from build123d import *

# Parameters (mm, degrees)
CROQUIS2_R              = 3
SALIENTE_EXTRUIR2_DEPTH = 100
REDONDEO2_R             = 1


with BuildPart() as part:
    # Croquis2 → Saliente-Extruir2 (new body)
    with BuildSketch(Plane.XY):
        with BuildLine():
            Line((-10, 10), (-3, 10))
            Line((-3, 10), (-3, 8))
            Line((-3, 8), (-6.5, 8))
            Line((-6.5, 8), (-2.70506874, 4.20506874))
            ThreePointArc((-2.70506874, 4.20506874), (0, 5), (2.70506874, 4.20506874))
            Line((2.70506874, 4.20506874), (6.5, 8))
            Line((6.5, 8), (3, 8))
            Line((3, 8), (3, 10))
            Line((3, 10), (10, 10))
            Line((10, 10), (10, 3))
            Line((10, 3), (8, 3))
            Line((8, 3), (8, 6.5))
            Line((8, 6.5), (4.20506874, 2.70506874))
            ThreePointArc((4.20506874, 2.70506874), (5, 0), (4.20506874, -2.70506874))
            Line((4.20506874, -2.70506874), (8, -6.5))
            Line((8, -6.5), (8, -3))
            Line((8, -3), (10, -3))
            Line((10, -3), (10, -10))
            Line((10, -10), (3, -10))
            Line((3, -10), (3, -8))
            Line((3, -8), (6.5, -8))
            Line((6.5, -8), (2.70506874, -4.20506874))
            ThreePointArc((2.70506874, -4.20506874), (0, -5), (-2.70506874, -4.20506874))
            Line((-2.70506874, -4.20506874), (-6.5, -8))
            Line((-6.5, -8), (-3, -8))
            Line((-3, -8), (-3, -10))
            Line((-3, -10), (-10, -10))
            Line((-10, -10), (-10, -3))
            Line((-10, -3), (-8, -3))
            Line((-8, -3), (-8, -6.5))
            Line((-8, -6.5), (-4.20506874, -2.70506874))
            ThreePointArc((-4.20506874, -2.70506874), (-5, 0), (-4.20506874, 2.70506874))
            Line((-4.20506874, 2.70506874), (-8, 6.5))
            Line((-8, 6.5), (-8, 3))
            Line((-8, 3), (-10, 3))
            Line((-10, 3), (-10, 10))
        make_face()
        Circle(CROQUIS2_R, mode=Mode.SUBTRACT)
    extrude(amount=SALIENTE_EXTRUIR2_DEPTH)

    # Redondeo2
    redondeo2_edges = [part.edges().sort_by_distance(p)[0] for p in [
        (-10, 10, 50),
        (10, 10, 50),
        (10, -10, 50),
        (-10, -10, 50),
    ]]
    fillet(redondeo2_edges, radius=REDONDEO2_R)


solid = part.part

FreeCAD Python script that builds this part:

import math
import FreeCAD as App
import Part
import Sketcher

V = App.Vector


def edges_at(feature, points):
    """Names of the edges that pass closest to the given points."""
    edges = feature.Shape.Edges
    near = lambda p: min(range(len(edges)), key=lambda i: edges[i].distToShape(Part.Vertex(*p))[0])
    return sorted({f"Edge{near(p) + 1}" for p in points})

doc = App.newDocument("Part")
body = doc.addObject("PartDesign::Body", "Body")

sketch1 = doc.addObject("Sketcher::SketchObject", "Sketch")
body.addObject(sketch1)
sketch1.AttachmentSupport = (doc.XY_Plane, [""])
sketch1.MapMode = "FlatFace"
sketch1.addGeometry([
    Part.LineSegment(V(-3, 10, 0), V(-10, 10, 0)),
    Part.LineSegment(V(-10, 10, 0), V(-10, 3, 0)),
    Part.LineSegment(V(-10, 3, 0), V(-8, 3, 0)),
    Part.LineSegment(V(-8, 3, 0), V(-8, 6.5, 0)),
    Part.LineSegment(V(-8, 6.5, 0), V(-4.205069, 2.705069, 0)),
    Part.ArcOfCircle(Part.Circle(V(0, 0, 0), V(0, 0, 1), 5), math.radians(147.247324), math.radians(212.752676)),
    Part.LineSegment(V(-4.205069, -2.705069, 0), V(-8, -6.5, 0)),
    Part.LineSegment(V(-8, -6.5, 0), V(-8, -3, 0)),
    Part.LineSegment(V(-8, -3, 0), V(-10, -3, 0)),
    Part.LineSegment(V(-10, -3, 0), V(-10, -10, 0)),
    Part.LineSegment(V(-10, -10, 0), V(-3, -10, 0)),
    Part.LineSegment(V(-3, -10, 0), V(-3, -8, 0)),
    Part.LineSegment(V(-3, -8, 0), V(-6.5, -8, 0)),
    Part.LineSegment(V(-6.5, -8, 0), V(-2.705069, -4.205069, 0)),
    Part.ArcOfCircle(Part.Circle(V(0, 0, 0), V(0, 0, 1), 5), math.radians(-122.752676), math.radians(-57.247324)),
    Part.LineSegment(V(2.705069, -4.205069, 0), V(6.5, -8, 0)),
    Part.LineSegment(V(6.5, -8, 0), V(3, -8, 0)),
    Part.LineSegment(V(3, -8, 0), V(3, -10, 0)),
    Part.LineSegment(V(3, -10, 0), V(10, -10, 0)),
    Part.LineSegment(V(10, -10, 0), V(10, -3, 0)),
    Part.LineSegment(V(10, -3, 0), V(8, -3, 0)),
    Part.LineSegment(V(8, -3, 0), V(8, -6.5, 0)),
    Part.LineSegment(V(8, -6.5, 0), V(4.205069, -2.705069, 0)),
    Part.ArcOfCircle(Part.Circle(V(0, 0, 0), V(0, 0, 1), 5), math.radians(-32.752676), math.radians(32.752676)),
    Part.LineSegment(V(4.205069, 2.705069, 0), V(8, 6.5, 0)),
    Part.LineSegment(V(8, 6.5, 0), V(8, 3, 0)),
    Part.LineSegment(V(8, 3, 0), V(10, 3, 0)),
    Part.LineSegment(V(10, 3, 0), V(10, 10, 0)),
    Part.LineSegment(V(10, 10, 0), V(3, 10, 0)),
    Part.LineSegment(V(3, 10, 0), V(3, 8, 0)),
    Part.LineSegment(V(3, 8, 0), V(6.5, 8, 0)),
    Part.LineSegment(V(6.5, 8, 0), V(2.705069, 4.205069, 0)),
    Part.ArcOfCircle(Part.Circle(V(0, 0, 0), V(0, 0, 1), 5), math.radians(57.247324), math.radians(122.752676)),
    Part.LineSegment(V(-2.705069, 4.205069, 0), V(-6.5, 8, 0)),
    Part.LineSegment(V(-6.5, 8, 0), V(-3, 8, 0)),
    Part.LineSegment(V(-3, 8, 0), V(-3, 10, 0)),
    Part.Circle(V(0, 0, 0), V(0, 0, 1), 3),
], False)
sketch1.addConstraint([
    Sketcher.Constraint("Coincident", 0, 2, 1, 1),
    Sketcher.Constraint("Coincident", 1, 2, 2, 1),
    Sketcher.Constraint("Coincident", 2, 2, 3, 1),
    Sketcher.Constraint("Coincident", 3, 2, 4, 1),
    Sketcher.Constraint("Coincident", 4, 2, 5, 1),
    Sketcher.Constraint("Coincident", 5, 2, 6, 1),
    Sketcher.Constraint("Coincident", 6, 2, 7, 1),
    Sketcher.Constraint("Coincident", 7, 2, 8, 1),
    Sketcher.Constraint("Coincident", 8, 2, 9, 1),
    Sketcher.Constraint("Coincident", 9, 2, 10, 1),
    Sketcher.Constraint("Coincident", 10, 2, 11, 1),
    Sketcher.Constraint("Coincident", 11, 2, 12, 1),
    Sketcher.Constraint("Coincident", 12, 2, 13, 1),
    Sketcher.Constraint("Coincident", 13, 2, 14, 1),
    Sketcher.Constraint("Coincident", 14, 2, 15, 1),
    Sketcher.Constraint("Coincident", 15, 2, 16, 1),
    Sketcher.Constraint("Coincident", 16, 2, 17, 1),
    Sketcher.Constraint("Coincident", 17, 2, 18, 1),
    Sketcher.Constraint("Coincident", 18, 2, 19, 1),
    Sketcher.Constraint("Coincident", 19, 2, 20, 1),
    Sketcher.Constraint("Coincident", 20, 2, 21, 1),
    Sketcher.Constraint("Coincident", 21, 2, 22, 1),
    Sketcher.Constraint("Coincident", 22, 2, 23, 1),
    Sketcher.Constraint("Coincident", 23, 2, 24, 1),
    Sketcher.Constraint("Coincident", 24, 2, 25, 1),
    Sketcher.Constraint("Coincident", 25, 2, 26, 1),
    Sketcher.Constraint("Coincident", 26, 2, 27, 1),
    Sketcher.Constraint("Coincident", 27, 2, 28, 1),
    Sketcher.Constraint("Coincident", 28, 2, 29, 1),
    Sketcher.Constraint("Coincident", 29, 2, 30, 1),
    Sketcher.Constraint("Coincident", 30, 2, 31, 1),
    Sketcher.Constraint("Coincident", 31, 2, 32, 1),
    Sketcher.Constraint("Coincident", 32, 2, 33, 1),
    Sketcher.Constraint("Coincident", 33, 2, 34, 1),
    Sketcher.Constraint("Coincident", 34, 2, 35, 1),
    Sketcher.Constraint("Coincident", 35, 2, 0, 1),
    Sketcher.Constraint("Horizontal", 0),
    Sketcher.Constraint("Vertical", 1),
    Sketcher.Constraint("Horizontal", 2),
    Sketcher.Constraint("Vertical", 3),
    Sketcher.Constraint("Vertical", 7),
    Sketcher.Constraint("Horizontal", 8),
    Sketcher.Constraint("Vertical", 9),
    Sketcher.Constraint("Horizontal", 10),
    Sketcher.Constraint("Vertical", 11),
    Sketcher.Constraint("Horizontal", 12),
    Sketcher.Constraint("Horizontal", 16),
    Sketcher.Constraint("Vertical", 17),
    Sketcher.Constraint("Horizontal", 18),
    Sketcher.Constraint("Vertical", 19),
    Sketcher.Constraint("Horizontal", 20),
    Sketcher.Constraint("Vertical", 21),
    Sketcher.Constraint("Vertical", 25),
    Sketcher.Constraint("Horizontal", 26),
    Sketcher.Constraint("Vertical", 27),
    Sketcher.Constraint("Horizontal", 28),
    Sketcher.Constraint("Vertical", 29),
    Sketcher.Constraint("Horizontal", 30),
    Sketcher.Constraint("Horizontal", 34),
    Sketcher.Constraint("Vertical", 35),
    Sketcher.Constraint("Coincident", 5, 3, -1, 1),
    Sketcher.Constraint("Coincident", 14, 3, -1, 1),
    Sketcher.Constraint("Coincident", 23, 3, -1, 1),
    Sketcher.Constraint("Coincident", 32, 3, -1, 1),
    Sketcher.Constraint("Coincident", 36, 3, -1, 1),
    Sketcher.Constraint("Equal", 5, 14),
    Sketcher.Constraint("Equal", 14, 23),
    Sketcher.Constraint("Equal", 23, 32),
    Sketcher.Constraint("Symmetric", 0, 2, 18, 2, -1, 1),
    Sketcher.Constraint("Symmetric", 2, 2, 20, 2, -1, 1),
    Sketcher.Constraint("Symmetric", 6, 2, 24, 2, -1, 1),
    Sketcher.Constraint("Symmetric", 8, 2, 26, 2, -1, 1),
    Sketcher.Constraint("Symmetric", 10, 2, 28, 2, -1, 1),
    Sketcher.Constraint("Symmetric", 12, 2, 30, 2, -1, 1),
    Sketcher.Constraint("Symmetric", 15, 2, 33, 2, -1, 1),
    Sketcher.Constraint("Symmetric", 12, 2, 15, 2, -2),
    Sketcher.Constraint("Symmetric", 10, 2, 17, 2, -2),
    Sketcher.Constraint("Symmetric", 8, 2, 19, 2, -2),
    Sketcher.Constraint("Symmetric", 6, 2, 21, 2, -2),
    Sketcher.Constraint("Perpendicular", 4, 6),
    Sketcher.Constraint("Parallel", 6, 13),
    Sketcher.Constraint("Perpendicular", 13, 15),
    Sketcher.Constraint("Parallel", 15, 22),
    Sketcher.Constraint("Perpendicular", 22, 24),
    Sketcher.Constraint("Parallel", 24, 31),
    Sketcher.Constraint("Perpendicular", 31, 33),
    Sketcher.Constraint("Horizontal", 13, 2, 14, 2),
    Sketcher.Constraint("Horizontal", 4, 2, 23, 2),
    Sketcher.Constraint("Vertical", 11, 2, 34, 2),
    Sketcher.Constraint("Equal", 28, 1),
    Sketcher.Constraint("Equal", 34, 3),
    Sketcher.Constraint("Equal", 26, 11),
    Sketcher.Constraint("Equal", 6, 13),
    Sketcher.Constraint("Diameter", 36, 6.0),
    Sketcher.Constraint("Radius", 5, 5.0),
    Sketcher.Constraint("DistanceX", 0, 2, 0, 1, 7.0),
    Sketcher.Constraint("DistanceX", 2, 1, 2, 2, 2.0),
    Sketcher.Constraint("DistanceX", 12, 2, 12, 1, 3.5),
    Sketcher.Constraint("DistanceX", 0, 2, -1, 1, 10.0),
])
pad1 = doc.addObject("PartDesign::Pad", "Pad")
body.addObject(pad1)
pad1.Profile = sketch1
pad1.Length = 100
doc.recompute()

fillet = doc.addObject("PartDesign::Fillet", "Fillet")
body.addObject(fillet)
fillet.Base = (pad1, edges_at(pad1, [
    (-10, 10, 50),
    (10, 10, 50),
    (10, -10, 50),
    (-10, -10, 50),
]))
fillet.Radius = 1

doc.recompute()
